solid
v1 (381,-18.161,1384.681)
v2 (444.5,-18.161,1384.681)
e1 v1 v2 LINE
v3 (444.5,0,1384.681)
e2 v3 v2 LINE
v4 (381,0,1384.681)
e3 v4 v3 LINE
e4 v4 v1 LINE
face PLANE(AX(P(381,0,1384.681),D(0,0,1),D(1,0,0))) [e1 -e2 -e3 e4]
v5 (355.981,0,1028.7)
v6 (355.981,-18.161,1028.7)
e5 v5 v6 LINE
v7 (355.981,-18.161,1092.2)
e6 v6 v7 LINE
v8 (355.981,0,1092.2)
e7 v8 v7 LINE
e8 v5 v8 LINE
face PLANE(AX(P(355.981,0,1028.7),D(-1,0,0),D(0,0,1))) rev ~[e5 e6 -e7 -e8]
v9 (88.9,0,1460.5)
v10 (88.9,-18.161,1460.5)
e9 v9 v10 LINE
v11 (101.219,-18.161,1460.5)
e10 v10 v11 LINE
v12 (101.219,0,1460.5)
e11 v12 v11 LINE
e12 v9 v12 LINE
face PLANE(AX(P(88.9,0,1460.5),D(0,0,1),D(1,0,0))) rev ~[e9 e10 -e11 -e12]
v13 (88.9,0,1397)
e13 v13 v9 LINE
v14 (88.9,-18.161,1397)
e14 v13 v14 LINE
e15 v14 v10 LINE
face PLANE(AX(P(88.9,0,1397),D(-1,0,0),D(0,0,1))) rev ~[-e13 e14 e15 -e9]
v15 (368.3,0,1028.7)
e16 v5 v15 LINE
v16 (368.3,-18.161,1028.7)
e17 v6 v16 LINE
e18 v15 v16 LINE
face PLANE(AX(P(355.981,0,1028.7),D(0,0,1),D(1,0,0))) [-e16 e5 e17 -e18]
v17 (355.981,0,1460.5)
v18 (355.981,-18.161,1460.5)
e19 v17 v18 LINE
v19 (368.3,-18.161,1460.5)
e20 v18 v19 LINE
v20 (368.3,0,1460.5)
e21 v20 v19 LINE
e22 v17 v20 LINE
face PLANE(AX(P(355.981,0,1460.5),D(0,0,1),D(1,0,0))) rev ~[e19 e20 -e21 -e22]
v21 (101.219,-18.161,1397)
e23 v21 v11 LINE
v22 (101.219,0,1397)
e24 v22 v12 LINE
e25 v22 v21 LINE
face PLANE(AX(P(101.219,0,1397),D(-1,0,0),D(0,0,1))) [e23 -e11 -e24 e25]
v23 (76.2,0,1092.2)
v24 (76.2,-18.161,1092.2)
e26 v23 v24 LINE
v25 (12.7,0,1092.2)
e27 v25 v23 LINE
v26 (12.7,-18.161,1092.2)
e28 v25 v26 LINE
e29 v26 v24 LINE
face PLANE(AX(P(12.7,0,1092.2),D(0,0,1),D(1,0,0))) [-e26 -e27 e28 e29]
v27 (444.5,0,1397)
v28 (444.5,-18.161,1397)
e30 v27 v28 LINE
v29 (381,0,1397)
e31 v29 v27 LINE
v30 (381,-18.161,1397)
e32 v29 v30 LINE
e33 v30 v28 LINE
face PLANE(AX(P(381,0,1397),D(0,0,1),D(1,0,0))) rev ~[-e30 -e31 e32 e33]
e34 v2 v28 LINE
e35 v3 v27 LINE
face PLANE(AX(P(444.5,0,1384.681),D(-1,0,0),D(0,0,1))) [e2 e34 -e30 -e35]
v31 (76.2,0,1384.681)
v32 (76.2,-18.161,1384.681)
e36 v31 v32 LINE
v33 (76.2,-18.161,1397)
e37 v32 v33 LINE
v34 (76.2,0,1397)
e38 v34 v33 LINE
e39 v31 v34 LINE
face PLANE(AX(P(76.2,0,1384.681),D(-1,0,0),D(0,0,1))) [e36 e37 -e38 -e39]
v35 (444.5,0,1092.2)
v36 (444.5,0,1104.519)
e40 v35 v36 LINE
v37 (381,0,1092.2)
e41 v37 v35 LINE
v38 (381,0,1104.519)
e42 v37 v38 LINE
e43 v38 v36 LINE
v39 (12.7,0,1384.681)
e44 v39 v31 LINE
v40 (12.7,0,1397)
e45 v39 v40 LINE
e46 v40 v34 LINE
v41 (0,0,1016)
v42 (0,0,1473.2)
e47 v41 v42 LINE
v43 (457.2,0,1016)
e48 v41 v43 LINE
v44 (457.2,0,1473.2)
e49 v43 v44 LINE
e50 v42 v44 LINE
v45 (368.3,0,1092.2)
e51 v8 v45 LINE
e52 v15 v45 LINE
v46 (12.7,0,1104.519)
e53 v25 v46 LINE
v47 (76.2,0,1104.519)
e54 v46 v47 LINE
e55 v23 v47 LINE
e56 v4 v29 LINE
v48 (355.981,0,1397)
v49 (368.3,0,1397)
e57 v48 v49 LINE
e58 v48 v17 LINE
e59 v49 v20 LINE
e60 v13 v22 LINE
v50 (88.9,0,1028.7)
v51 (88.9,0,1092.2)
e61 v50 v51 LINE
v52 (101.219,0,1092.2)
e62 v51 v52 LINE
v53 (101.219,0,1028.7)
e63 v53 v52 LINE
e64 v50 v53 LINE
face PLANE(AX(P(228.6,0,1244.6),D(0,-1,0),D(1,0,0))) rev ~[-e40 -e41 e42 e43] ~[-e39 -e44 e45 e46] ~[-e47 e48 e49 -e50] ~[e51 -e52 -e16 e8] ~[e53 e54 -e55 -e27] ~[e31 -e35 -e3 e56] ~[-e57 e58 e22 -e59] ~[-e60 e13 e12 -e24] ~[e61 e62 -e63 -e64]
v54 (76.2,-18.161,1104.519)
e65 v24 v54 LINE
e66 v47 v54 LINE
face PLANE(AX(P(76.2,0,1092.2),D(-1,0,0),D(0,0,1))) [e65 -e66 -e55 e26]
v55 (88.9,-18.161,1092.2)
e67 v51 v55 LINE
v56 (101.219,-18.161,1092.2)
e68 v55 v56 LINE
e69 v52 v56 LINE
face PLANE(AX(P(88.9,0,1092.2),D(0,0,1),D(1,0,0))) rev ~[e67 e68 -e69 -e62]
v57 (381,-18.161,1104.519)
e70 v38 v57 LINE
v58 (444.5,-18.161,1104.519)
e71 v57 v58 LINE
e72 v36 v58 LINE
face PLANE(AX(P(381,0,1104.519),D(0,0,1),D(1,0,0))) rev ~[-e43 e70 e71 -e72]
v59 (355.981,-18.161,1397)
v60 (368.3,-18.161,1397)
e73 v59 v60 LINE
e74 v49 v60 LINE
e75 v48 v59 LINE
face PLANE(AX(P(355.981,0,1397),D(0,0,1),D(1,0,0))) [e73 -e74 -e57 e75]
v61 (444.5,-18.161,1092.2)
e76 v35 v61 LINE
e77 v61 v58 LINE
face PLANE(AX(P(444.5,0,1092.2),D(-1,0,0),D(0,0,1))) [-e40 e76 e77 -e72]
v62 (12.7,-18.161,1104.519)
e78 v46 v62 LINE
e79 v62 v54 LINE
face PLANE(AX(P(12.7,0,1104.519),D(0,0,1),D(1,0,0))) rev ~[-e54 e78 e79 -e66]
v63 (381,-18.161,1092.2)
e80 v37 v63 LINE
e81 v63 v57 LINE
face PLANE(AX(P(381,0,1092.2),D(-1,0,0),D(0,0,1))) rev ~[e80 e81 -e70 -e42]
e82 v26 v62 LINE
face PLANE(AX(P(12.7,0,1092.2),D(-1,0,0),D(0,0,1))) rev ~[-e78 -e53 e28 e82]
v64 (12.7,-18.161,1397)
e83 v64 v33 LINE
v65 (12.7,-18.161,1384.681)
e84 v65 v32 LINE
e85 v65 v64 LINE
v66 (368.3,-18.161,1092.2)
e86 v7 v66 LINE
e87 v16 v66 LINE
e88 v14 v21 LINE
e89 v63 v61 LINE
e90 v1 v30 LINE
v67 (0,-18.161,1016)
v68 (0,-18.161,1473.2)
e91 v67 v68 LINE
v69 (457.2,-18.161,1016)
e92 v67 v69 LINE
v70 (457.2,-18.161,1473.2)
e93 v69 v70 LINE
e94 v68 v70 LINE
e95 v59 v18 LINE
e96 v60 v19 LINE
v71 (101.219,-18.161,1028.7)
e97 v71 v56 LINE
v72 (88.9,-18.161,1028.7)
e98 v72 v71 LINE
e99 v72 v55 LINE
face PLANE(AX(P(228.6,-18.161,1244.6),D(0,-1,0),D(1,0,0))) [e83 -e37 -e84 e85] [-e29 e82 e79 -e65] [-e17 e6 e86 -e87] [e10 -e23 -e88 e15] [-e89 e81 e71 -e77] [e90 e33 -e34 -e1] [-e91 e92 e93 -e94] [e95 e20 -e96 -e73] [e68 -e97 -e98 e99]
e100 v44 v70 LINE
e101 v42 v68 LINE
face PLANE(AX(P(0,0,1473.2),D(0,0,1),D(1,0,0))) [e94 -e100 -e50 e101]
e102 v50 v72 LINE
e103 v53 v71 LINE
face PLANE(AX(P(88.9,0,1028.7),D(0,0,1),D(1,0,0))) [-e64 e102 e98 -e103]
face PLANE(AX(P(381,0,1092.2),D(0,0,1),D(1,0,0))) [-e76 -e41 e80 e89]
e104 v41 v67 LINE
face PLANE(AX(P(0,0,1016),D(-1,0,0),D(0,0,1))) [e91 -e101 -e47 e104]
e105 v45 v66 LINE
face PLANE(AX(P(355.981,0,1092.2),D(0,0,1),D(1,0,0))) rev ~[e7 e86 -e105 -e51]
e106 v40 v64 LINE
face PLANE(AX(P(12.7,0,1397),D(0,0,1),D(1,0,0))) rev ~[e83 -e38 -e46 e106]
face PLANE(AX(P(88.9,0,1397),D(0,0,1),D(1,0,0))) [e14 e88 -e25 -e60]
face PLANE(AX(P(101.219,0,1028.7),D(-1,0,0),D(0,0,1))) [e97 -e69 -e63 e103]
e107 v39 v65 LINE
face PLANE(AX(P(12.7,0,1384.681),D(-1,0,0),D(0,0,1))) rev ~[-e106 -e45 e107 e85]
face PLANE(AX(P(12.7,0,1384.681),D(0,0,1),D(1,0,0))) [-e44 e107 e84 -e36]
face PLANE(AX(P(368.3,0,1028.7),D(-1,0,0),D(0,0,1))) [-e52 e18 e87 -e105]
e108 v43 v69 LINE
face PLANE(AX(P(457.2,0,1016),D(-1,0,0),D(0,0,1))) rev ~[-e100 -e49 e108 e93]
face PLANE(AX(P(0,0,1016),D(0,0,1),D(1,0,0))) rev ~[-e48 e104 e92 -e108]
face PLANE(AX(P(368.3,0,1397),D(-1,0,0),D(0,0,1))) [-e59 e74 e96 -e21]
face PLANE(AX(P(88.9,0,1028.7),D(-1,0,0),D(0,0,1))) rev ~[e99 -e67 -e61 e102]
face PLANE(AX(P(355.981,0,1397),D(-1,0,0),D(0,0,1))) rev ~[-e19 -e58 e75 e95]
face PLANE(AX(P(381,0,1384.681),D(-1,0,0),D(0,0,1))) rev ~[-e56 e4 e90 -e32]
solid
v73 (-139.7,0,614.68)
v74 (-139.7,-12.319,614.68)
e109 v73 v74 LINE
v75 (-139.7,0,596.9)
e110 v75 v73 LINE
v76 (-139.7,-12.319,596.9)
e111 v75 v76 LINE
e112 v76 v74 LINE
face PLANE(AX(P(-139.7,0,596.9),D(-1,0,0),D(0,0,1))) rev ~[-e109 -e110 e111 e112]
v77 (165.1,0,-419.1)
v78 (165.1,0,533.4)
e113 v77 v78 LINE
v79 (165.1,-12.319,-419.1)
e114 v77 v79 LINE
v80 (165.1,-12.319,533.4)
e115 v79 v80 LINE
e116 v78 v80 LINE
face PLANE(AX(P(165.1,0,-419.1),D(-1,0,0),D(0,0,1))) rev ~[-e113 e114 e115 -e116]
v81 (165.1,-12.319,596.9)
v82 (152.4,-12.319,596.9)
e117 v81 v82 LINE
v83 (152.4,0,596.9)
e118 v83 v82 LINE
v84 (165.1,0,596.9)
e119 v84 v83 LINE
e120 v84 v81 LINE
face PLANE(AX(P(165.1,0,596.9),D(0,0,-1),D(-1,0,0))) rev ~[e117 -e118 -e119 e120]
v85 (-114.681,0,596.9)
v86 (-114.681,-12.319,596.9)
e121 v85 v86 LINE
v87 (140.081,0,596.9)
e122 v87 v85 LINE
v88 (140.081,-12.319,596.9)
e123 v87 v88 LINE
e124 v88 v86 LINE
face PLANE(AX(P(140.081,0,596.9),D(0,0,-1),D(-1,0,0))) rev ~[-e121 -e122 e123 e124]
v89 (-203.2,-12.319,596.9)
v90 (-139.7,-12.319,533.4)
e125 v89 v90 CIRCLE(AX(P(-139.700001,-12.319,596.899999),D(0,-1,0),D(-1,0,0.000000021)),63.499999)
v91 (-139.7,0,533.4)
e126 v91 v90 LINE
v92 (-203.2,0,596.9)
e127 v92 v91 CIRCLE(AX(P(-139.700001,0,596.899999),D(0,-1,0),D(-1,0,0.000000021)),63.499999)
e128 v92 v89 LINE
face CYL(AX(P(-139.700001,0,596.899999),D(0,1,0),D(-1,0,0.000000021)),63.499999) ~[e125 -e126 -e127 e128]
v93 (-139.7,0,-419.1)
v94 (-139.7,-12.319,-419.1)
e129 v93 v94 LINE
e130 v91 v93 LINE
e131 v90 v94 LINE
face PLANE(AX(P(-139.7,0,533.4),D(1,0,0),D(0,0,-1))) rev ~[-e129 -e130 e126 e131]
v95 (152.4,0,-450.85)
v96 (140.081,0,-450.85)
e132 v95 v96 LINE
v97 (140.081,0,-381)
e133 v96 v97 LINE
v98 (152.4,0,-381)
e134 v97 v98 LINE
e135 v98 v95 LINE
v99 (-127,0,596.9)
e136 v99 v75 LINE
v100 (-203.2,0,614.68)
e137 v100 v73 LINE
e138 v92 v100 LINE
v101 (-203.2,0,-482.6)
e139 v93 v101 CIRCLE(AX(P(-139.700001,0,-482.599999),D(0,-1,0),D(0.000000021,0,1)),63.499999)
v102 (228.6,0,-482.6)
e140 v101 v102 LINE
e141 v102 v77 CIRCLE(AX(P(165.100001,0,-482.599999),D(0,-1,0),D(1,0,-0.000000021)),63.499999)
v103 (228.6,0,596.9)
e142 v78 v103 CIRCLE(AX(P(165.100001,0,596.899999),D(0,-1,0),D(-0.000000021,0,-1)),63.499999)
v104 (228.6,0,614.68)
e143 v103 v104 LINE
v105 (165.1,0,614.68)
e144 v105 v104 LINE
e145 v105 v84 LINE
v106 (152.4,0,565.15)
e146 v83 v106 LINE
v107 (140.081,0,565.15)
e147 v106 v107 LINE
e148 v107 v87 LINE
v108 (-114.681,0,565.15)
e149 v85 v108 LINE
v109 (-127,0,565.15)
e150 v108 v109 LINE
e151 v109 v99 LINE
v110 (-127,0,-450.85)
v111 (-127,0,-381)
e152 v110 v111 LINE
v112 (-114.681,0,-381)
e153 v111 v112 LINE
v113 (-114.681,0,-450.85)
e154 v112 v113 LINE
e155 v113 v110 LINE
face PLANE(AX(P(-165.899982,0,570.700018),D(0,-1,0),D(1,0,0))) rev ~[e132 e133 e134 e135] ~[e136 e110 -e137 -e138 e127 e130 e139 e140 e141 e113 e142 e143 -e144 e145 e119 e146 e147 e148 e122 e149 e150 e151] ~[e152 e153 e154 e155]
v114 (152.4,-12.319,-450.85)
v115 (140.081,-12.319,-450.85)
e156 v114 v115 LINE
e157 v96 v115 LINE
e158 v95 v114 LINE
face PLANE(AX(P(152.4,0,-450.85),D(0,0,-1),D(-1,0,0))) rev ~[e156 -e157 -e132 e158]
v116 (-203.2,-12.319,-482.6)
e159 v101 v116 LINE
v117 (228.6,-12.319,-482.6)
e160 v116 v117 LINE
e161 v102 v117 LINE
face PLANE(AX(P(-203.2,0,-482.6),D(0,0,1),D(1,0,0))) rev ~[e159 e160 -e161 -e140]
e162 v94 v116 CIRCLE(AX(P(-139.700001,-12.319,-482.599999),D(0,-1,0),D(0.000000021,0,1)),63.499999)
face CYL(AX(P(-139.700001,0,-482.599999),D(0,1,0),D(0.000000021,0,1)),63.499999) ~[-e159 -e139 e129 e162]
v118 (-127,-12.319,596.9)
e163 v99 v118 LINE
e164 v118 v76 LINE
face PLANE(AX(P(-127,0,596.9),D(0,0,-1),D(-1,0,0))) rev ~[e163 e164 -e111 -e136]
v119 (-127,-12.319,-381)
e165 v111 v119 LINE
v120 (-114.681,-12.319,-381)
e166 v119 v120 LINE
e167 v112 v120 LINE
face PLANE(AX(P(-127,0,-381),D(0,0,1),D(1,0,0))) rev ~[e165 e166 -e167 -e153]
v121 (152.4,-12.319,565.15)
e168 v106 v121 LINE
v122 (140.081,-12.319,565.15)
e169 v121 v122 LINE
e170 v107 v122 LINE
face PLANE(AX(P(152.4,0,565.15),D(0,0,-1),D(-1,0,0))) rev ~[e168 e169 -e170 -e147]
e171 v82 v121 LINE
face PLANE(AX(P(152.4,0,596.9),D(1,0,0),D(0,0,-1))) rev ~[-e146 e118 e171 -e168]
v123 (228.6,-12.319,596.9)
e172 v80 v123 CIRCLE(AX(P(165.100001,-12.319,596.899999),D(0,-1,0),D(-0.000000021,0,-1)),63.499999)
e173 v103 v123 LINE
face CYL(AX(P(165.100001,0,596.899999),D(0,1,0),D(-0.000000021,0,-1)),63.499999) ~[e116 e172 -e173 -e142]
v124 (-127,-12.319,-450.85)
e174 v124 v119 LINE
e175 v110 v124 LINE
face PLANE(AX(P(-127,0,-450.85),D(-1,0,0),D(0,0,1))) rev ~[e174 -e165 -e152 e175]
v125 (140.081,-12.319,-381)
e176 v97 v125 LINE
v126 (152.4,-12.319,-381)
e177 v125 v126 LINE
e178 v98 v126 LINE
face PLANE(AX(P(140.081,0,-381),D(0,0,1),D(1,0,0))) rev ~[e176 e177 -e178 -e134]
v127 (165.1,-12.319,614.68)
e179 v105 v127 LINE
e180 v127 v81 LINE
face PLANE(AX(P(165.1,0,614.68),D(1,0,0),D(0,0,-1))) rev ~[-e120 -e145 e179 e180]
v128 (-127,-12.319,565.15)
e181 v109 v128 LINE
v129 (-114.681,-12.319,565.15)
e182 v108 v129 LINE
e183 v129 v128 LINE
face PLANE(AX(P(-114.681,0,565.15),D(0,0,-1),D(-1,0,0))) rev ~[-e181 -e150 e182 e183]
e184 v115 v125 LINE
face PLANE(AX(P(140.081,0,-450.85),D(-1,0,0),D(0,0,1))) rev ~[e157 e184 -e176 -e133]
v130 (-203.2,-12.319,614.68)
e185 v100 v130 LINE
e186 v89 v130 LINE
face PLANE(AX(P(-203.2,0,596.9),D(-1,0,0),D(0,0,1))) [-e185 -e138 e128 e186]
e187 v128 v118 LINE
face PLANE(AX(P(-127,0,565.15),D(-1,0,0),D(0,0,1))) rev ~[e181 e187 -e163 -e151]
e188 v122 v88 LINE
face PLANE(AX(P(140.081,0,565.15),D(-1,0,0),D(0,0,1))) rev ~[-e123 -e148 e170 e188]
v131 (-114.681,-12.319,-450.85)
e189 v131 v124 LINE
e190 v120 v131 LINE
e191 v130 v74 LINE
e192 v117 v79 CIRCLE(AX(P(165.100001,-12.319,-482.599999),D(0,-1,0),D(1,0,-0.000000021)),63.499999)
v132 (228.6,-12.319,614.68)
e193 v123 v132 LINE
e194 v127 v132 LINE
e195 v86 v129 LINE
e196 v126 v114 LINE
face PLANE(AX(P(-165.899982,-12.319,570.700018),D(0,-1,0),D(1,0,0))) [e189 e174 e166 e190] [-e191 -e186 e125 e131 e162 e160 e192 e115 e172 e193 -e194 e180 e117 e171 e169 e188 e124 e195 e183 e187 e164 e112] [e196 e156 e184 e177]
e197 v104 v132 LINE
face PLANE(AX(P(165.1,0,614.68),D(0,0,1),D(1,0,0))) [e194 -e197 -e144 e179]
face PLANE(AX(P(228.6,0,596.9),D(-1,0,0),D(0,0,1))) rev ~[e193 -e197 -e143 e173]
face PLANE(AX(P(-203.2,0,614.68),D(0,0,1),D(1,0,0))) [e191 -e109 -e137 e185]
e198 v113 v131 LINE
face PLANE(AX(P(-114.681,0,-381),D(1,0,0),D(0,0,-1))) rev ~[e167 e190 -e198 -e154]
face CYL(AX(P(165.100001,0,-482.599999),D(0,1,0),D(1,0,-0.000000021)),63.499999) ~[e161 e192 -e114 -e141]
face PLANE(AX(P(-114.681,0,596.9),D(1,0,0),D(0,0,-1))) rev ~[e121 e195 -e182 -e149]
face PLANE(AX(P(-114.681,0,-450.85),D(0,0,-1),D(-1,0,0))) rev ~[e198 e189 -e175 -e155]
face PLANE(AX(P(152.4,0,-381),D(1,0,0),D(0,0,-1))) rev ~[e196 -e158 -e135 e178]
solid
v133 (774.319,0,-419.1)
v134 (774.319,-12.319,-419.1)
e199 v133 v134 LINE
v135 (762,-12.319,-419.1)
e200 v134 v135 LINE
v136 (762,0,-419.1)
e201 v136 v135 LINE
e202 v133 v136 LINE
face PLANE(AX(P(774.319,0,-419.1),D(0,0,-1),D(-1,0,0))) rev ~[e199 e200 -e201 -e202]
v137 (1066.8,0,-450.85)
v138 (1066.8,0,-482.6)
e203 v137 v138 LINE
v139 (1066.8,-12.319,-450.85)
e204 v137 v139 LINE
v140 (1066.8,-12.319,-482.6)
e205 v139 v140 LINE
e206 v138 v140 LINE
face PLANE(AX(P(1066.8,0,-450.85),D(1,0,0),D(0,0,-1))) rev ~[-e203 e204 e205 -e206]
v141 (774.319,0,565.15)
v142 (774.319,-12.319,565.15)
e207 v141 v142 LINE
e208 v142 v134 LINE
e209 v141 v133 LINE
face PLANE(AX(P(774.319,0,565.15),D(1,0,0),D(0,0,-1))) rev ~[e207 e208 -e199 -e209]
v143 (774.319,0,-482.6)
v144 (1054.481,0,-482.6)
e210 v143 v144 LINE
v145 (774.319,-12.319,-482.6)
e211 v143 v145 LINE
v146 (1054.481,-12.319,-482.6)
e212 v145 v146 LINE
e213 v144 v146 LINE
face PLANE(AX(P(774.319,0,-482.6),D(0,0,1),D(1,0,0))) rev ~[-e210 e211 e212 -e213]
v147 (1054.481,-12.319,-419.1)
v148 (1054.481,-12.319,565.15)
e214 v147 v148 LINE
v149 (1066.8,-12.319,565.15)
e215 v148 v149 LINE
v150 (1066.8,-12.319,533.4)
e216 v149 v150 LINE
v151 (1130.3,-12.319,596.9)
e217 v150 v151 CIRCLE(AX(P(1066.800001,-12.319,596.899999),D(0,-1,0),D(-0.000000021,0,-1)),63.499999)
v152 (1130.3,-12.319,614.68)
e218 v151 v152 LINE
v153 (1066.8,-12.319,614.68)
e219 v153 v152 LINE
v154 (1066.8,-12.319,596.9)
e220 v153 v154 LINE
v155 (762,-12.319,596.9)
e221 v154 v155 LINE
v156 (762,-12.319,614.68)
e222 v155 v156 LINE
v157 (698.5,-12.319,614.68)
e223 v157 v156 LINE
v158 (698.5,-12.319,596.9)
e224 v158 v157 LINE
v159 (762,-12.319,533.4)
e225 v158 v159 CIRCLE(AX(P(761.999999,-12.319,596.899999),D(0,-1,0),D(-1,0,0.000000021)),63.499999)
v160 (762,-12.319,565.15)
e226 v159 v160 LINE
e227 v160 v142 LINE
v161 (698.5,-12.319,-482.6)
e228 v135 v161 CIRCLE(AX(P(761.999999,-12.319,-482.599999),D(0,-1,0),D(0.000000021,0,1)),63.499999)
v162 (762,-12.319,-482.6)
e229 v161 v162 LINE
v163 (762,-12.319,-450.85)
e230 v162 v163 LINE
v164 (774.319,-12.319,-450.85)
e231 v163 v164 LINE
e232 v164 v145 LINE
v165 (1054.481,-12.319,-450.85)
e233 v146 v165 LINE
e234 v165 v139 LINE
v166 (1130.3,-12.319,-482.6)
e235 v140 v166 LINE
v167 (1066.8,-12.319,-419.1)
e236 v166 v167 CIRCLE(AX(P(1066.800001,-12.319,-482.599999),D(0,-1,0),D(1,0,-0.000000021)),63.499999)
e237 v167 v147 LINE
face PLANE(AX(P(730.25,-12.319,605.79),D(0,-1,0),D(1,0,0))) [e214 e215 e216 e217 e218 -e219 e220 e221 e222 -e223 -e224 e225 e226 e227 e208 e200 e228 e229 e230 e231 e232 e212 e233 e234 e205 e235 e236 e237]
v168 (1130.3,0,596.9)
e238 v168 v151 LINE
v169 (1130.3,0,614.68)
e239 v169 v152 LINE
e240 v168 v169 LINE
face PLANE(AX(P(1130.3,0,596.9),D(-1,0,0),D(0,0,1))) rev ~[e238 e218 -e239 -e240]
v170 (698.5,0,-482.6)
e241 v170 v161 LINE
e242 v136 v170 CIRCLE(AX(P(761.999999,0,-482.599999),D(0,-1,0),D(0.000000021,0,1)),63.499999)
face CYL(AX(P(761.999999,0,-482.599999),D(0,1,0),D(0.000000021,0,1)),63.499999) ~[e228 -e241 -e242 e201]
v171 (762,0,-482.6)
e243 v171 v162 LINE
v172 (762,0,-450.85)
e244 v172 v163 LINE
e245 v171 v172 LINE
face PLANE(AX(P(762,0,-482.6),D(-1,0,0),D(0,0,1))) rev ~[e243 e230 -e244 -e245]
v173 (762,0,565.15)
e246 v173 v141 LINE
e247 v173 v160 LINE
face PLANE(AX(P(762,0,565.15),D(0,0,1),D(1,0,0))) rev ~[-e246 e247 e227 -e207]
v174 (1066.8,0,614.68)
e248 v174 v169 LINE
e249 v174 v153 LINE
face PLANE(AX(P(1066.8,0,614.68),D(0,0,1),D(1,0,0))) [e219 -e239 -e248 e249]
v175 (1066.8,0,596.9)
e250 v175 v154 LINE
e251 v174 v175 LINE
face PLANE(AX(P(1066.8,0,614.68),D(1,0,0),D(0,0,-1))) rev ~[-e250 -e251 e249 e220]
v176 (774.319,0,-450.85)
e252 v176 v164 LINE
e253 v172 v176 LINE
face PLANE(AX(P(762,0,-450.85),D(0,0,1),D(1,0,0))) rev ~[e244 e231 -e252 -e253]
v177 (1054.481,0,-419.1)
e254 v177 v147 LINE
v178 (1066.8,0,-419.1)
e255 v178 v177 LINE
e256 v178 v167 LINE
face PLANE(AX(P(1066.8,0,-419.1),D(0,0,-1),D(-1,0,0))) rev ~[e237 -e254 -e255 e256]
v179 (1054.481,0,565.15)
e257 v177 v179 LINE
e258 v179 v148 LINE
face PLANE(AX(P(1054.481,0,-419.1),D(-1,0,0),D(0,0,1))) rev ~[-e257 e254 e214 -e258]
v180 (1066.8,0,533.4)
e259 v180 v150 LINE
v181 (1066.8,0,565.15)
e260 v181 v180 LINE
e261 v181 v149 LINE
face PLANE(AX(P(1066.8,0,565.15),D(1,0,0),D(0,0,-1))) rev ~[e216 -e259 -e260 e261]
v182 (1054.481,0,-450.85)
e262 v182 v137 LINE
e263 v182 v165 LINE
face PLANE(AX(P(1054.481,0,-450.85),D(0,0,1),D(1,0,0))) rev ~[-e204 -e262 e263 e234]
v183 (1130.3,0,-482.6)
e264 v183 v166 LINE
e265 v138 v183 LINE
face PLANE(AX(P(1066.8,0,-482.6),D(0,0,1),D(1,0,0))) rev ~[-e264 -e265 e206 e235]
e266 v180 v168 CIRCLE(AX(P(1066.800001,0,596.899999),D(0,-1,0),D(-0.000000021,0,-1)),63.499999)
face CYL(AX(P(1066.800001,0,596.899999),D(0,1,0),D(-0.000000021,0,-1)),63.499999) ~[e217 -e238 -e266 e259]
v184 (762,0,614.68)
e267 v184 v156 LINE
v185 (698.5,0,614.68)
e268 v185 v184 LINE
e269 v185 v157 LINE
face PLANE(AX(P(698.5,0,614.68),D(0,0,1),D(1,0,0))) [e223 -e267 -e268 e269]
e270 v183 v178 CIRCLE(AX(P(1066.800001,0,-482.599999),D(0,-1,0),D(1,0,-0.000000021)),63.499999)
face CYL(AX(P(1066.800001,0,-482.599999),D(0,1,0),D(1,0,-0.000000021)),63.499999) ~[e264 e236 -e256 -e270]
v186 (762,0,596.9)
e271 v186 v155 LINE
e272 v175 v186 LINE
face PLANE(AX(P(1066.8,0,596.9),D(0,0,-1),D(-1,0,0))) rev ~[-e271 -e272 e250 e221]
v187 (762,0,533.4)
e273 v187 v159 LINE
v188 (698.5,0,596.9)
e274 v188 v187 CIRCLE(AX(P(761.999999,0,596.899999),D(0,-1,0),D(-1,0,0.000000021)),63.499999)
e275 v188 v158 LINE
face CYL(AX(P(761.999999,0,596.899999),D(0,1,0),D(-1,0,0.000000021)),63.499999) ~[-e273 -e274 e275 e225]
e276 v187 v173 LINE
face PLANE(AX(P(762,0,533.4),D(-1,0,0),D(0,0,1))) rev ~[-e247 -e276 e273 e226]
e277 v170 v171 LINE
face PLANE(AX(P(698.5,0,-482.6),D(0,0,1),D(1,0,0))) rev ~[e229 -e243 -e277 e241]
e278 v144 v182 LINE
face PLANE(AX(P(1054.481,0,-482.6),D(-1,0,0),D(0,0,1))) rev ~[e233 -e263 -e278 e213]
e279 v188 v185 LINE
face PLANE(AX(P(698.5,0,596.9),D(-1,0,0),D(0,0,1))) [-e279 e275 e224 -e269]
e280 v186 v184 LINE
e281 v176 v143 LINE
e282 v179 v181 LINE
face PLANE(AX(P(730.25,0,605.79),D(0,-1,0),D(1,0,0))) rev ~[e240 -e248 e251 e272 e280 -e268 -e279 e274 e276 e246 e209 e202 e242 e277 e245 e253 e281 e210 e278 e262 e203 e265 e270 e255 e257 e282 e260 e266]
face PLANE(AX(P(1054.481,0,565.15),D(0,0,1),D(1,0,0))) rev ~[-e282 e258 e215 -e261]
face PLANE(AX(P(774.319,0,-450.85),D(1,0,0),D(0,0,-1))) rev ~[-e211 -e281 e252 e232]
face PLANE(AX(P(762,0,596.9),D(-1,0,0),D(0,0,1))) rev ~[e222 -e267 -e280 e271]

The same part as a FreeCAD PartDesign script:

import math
import FreeCAD as App
import Part
import Sketcher

V = App.Vector
Q = App.Units.Quantity

doc = App.newDocument("Part")
params = doc.addObject("Spreadsheet::Sheet", "Params")
for row, (alias, value) in enumerate([
    ("sketch1_radius", "2.4999999 in"),
    ("sketch1_width", "17 in"),
    ("sketch1_width2", "12 in"),
    ("sketch1_width3", "0.5 in"),
    ("sketch1_height", "37.5 in"),
    ("pad1_length", "0.485 in"),
    ("sketch2_width", "18 in"),
    ("sketch2_width2", "2.5 in"),
    ("sketch2_width3", "0.485 in"),
    ("pad2_length", "0.715 in"),
], start=1):
    params.set(f"A{row}", alias)
    params.set(f"B{row}", "=" + value)
    params.setAlias(f"B{row}", alias)

body = doc.addObject("PartDesign::Body", "Body")
body.AllowCompound = True

# Sketch on XZ plane
sketch1 = body.newObject("Sketcher::SketchObject", "Sketch")
sketch1.AttachmentSupport = (doc.getObject("XZ_Plane"), [""])
sketch1.MapMode = "FlatFace"
sketch1.addGeometry(Part.ArcOfCircle(Part.Circle(V(-139.700001, 596.899999, 0), V(0, 0, 1), 63.499999), math.radians(179.999999), math.radians(270.000001)), False)
sketch1.addGeometry(Part.LineSegment(V(-139.7, 533.4, 0), V(-139.7, -419.1, 0)), False)
sketch1.addGeometry(Part.ArcOfCircle(Part.Circle(V(-139.700001, -482.599999, 0), V(0, 0, 1), 63.499999), math.radians(89.999999), math.radians(180.000001)), False)
sketch1.addGeometry(Part.LineSegment(V(-203.2, -482.6, 0), V(228.6, -482.6, 0)), False)
sketch1.addGeometry(Part.ArcOfCircle(Part.Circle(V(165.100001, -482.599999, 0), V(0, 0, 1), 63.499999), math.radians(-0.000001), math.radians(90.000001)), False)
sketch1.addGeometry(Part.LineSegment(V(165.1, -419.1, 0), V(165.1, 533.4, 0)), False)
sketch1.addGeometry(Part.ArcOfCircle(Part.Circle(V(165.100001, 596.899999, 0), V(0, 0, 1), 63.499999), math.radians(-90.000001), math.radians(0.000001)), False)
sketch1.addGeometry(Part.LineSegment(V(228.6, 596.9, 0), V(228.6, 614.68, 0)), False)
sketch1.addGeometry(Part.LineSegment(V(228.6, 614.68, 0), V(165.1, 614.68, 0)), False)
sketch1.addGeometry(Part.LineSegment(V(165.1, 614.68, 0), V(165.1, 596.9, 0)), False)
sketch1.addGeometry(Part.LineSegment(V(165.1, 596.9, 0), V(152.4, 596.9, 0)), False)
sketch1.addGeometry(Part.LineSegment(V(152.4, 596.9, 0), V(152.4, 565.15, 0)), False)
sketch1.addGeometry(Part.LineSegment(V(152.4, 565.15, 0), V(140.081, 565.15, 0)), False)
sketch1.addGeometry(Part.LineSegment(V(140.081, 565.15, 0), V(140.081, 596.9, 0)), False)
sketch1.addGeometry(Part.LineSegment(V(140.081, 596.9, 0), V(-114.681, 596.9, 0)), False)
sketch1.addGeometry(Part.LineSegment(V(-114.681, 596.9, 0), V(-114.681, 565.15, 0)), False)
sketch1.addGeometry(Part.LineSegment(V(-114.681, 565.15, 0), V(-127, 565.15, 0)), False)
sketch1.addGeometry(Part.LineSegment(V(-127, 565.15, 0), V(-127, 596.9, 0)), False)
sketch1.addGeometry(Part.LineSegment(V(-127, 596.9, 0), V(-139.7, 596.9, 0)), False)
sketch1.addGeometry(Part.LineSegment(V(-139.7, 596.9, 0), V(-139.7, 614.68, 0)), False)
sketch1.addGeometry(Part.LineSegment(V(-139.7, 614.68, 0), V(-203.2, 614.68, 0)), False)
sketch1.addGeometry(Part.LineSegment(V(-203.2, 614.68, 0), V(-203.2, 596.9, 0)), False)
sketch1.addGeometry(Part.LineSegment(V(152.4, -450.85, 0), V(140.081, -450.85, 0)), False)
sketch1.addGeometry(Part.LineSegment(V(140.081, -450.85, 0), V(140.081, -381, 0)), False)
sketch1.addGeometry(Part.LineSegment(V(140.081, -381, 0), V(152.4, -381, 0)), False)
sketch1.addGeometry(Part.LineSegment(V(152.4, -381, 0), V(152.4, -450.85, 0)), False)
sketch1.addGeometry(Part.LineSegment(V(-127, -381, 0), V(-114.681, -381, 0)), False)
sketch1.addGeometry(Part.LineSegment(V(-114.681, -381, 0), V(-114.681, -450.85, 0)), False)
sketch1.addGeometry(Part.LineSegment(V(-114.681, -450.85, 0), V(-127, -450.85, 0)), False)
sketch1.addGeometry(Part.LineSegment(V(-127, -450.85, 0), V(-127, -381, 0)), False)
sketch1.addGeometry(Part.LineSegment(V(698.5, 614.68, 0), V(698.5, 596.9, 0)), False)
sketch1.addGeometry(Part.ArcOfCircle(Part.Circle(V(761.999999, 596.899999, 0), V(0, 0, 1), 63.499999), math.radians(179.999999), math.radians(270.000001)), False)
sketch1.addGeometry(Part.LineSegment(V(762, 533.4, 0), V(762, 565.15, 0)), False)
sketch1.addGeometry(Part.LineSegment(V(762, 565.15, 0), V(774.319, 565.15, 0)), False)
sketch1.addGeometry(Part.LineSegment(V(774.319, 565.15, 0), V(774.319, -419.1, 0)), False)
sketch1.addGeometry(Part.LineSegment(V(774.319, -419.1, 0), V(762, -419.1, 0)), False)
sketch1.addGeometry(Part.ArcOfCircle(Part.Circle(V(761.999999, -482.599999, 0), V(0, 0, 1), 63.499999), math.radians(89.999999), math.radians(180.000001)), False)
sketch1.addGeometry(Part.LineSegment(V(698.5, -482.6, 0), V(762, -482.6, 0)), False)
sketch1.addGeometry(Part.LineSegment(V(762, -482.6, 0), V(762, -450.85, 0)), False)
sketch1.addGeometry(Part.LineSegment(V(762, -450.85, 0), V(774.319, -450.85, 0)), False)
sketch1.addGeometry(Part.LineSegment(V(774.319, -450.85, 0), V(774.319, -482.6, 0)), False)
sketch1.addGeometry(Part.LineSegment(V(774.319, -482.6, 0), V(1054.481, -482.6, 0)), False)
sketch1.addGeometry(Part.LineSegment(V(1054.481, -482.6, 0), V(1054.481, -450.85, 0)), False)
sketch1.addGeometry(Part.LineSegment(V(1054.481, -450.85, 0), V(1066.8, -450.85, 0)), False)
sketch1.addGeometry(Part.LineSegment(V(1066.8, -450.85, 0), V(1066.8, -482.6, 0)), False)
sketch1.addGeometry(Part.LineSegment(V(1066.8, -482.6, 0), V(1130.3, -482.6, 0)), False)
sketch1.addGeometry(Part.ArcOfCircle(Part.Circle(V(1066.800001, -482.599999, 0), V(0, 0, 1), 63.499999), math.radians(-0.000001), math.radians(90.000001)), False)
sketch1.addGeometry(Part.LineSegment(V(1066.8, -419.1, 0), V(1054.481, -419.1, 0)), False)
sketch1.addGeometry(Part.LineSegment(V(1054.481, -419.1, 0), V(1054.481, 565.15, 0)), False)
sketch1.addGeometry(Part.LineSegment(V(1054.481, 565.15, 0), V(1066.8, 565.15, 0)), False)
sketch1.addGeometry(Part.LineSegment(V(1066.8, 565.15, 0), V(1066.8, 533.4, 0)), False)
sketch1.addGeometry(Part.ArcOfCircle(Part.Circle(V(1066.800001, 596.899999, 0), V(0, 0, 1), 63.499999), math.radians(-90.000001), math.radians(0.000001)), False)
sketch1.addGeometry(Part.LineSegment(V(1130.3, 596.9, 0), V(1130.3, 614.68, 0)), False)
sketch1.addGeometry(Part.LineSegment(V(1130.3, 614.68, 0), V(1066.8, 614.68, 0)), False)
sketch1.addGeometry(Part.LineSegment(V(1066.8, 614.68, 0), V(1066.8, 596.9, 0)), False)
sketch1.addGeometry(Part.LineSegment(V(1066.8, 596.9, 0), V(762, 596.9, 0)), False)
sketch1.addGeometry(Part.LineSegment(V(762, 596.9, 0), V(762, 614.68, 0)), False)
sketch1.addGeometry(Part.LineSegment(V(762, 614.68, 0), V(698.5, 614.68, 0)), False)
sketch1.addConstraint(Sketcher.Constraint("Coincident", 0, 2, 1, 1))
sketch1.addConstraint(Sketcher.Constraint("Coincident", 1, 2, 2, 1))
sketch1.addConstraint(Sketcher.Constraint("Coincident", 2, 2, 3, 1))
sketch1.addConstraint(Sketcher.Constraint("Coincident", 3, 2, 4, 1))
sketch1.addConstraint(Sketcher.Constraint("Coincident", 4, 2, 5, 1))
sketch1.addConstraint(Sketcher.Constraint("Coincident", 5, 2, 6, 1))
sketch1.addConstraint(Sketcher.Constraint("Tangent", 6, 2, 7, 1))
sketch1.addConstraint(Sketcher.Constraint("Coincident", 7, 2, 8, 1))
sketch1.addConstraint(Sketcher.Constraint("Coincident", 8, 2, 9, 1))
sketch1.addConstraint(Sketcher.Constraint("Coincident", 9, 2, 10, 1))
sketch1.addConstraint(Sketcher.Constraint("Coincident", 10, 2, 11, 1))
sketch1.addConstraint(Sketcher.Constraint("Coincident", 11, 2, 12, 1))
sketch1.addConstraint(Sketcher.Constraint("Coincident", 12, 2, 13, 1))
sketch1.addConstraint(Sketcher.Constraint("Coincident", 13, 2, 14, 1))
sketch1.addConstraint(Sketcher.Constraint("Coincident", 14, 2, 15, 1))
sketch1.addConstraint(Sketcher.Constraint("Coincident", 15, 2, 16, 1))
sketch1.addConstraint(Sketcher.Constraint("Coincident", 16, 2, 17, 1))
sketch1.addConstraint(Sketcher.Constraint("Coincident", 17, 2, 18, 1))
sketch1.addConstraint(Sketcher.Constraint("Coincident", 18, 2, 19, 1))
sketch1.addConstraint(Sketcher.Constraint("Coincident", 19, 2, 20, 1))
sketch1.addConstraint(Sketcher.Constraint("Coincident", 20, 2, 21, 1))
sketch1.addConstraint(Sketcher.Constraint("Tangent", 21, 2, 0, 1))
sketch1.addConstraint(Sketcher.Constraint("Coincident", 22, 2, 23, 1))
sketch1.addConstraint(Sketcher.Constraint("Coincident", 23, 2, 24, 1))
sketch1.addConstraint(Sketcher.Constraint("Coincident", 24, 2, 25, 1))
sketch1.addConstraint(Sketcher.Constraint("Coincident", 25, 2, 22, 1))
sketch1.addConstraint(Sketcher.Constraint("Coincident", 26, 2, 27, 1))
sketch1.addConstraint(Sketcher.Constraint("Coincident", 27, 2, 28, 1))
sketch1.addConstraint(Sketcher.Constraint("Coincident", 28, 2, 29, 1))
sketch1.addConstraint(Sketcher.Constraint("Coincident", 29, 2, 26, 1))
sketch1.addConstraint(Sketcher.Constraint("Tangent", 30, 2, 31, 1))
sketch1.addConstraint(Sketcher.Constraint("Coincident", 31, 2, 32, 1))
sketch1.addConstraint(Sketcher.Constraint("Coincident", 32, 2, 33, 1))
sketch1.addConstraint(Sketcher.Constraint("Coincident", 33, 2, 34, 1))
sketch1.addConstraint(Sketcher.Constraint("Coincident", 34, 2, 35, 1))
sketch1.addConstraint(Sketcher.Constraint("Tangent", 35, 2, 36, 1))
sketch1.addConstraint(Sketcher.Constraint("Coincident", 36, 2, 37, 1))
sketch1.addConstraint(Sketcher.Constraint("Coincident", 37, 2, 38, 1))
sketch1.addConstraint(Sketcher.Constraint("Coincident", 38, 2, 39, 1))
sketch1.addConstraint(Sketcher.Constraint("Coincident", 39, 2, 40, 1))
sketch1.addConstraint(Sketcher.Constraint("Coincident", 40, 2, 41, 1))
sketch1.addConstraint(Sketcher.Constraint("Coincident", 41, 2, 42, 1))
sketch1.addConstraint(Sketcher.Constraint("Coincident", 42, 2, 43, 1))
sketch1.addConstraint(Sketcher.Constraint("Coincident", 43, 2, 44, 1))
sketch1.addConstraint(Sketcher.Constraint("Coincident", 44, 2, 45, 1))
sketch1.addConstraint(Sketcher.Constraint("Coincident", 45, 2, 46, 1))
sketch1.addConstraint(Sketcher.Constraint("Tangent", 46, 2, 47, 1))
sketch1.addConstraint(Sketcher.Constraint("Coincident", 47, 2, 48, 1))
sketch1.addConstraint(Sketcher.Constraint("Coincident", 48, 2, 49, 1))
sketch1.addConstraint(Sketcher.Constraint("Coincident", 49, 2, 50, 1))
sketch1.addConstraint(Sketcher.Constraint("Coincident", 50, 2, 51, 1))
sketch1.addConstraint(Sketcher.Constraint("Tangent", 51, 2, 52, 1))
sketch1.addConstraint(Sketcher.Constraint("Coincident", 52, 2, 53, 1))
sketch1.addConstraint(Sketcher.Constraint("Coincident", 53, 2, 54, 1))
sketch1.addConstraint(Sketcher.Constraint("Coincident", 54, 2, 55, 1))
sketch1.addConstraint(Sketcher.Constraint("Coincident", 55, 2, 56, 1))
sketch1.addConstraint(Sketcher.Constraint("Coincident", 56, 2, 57, 1))
sketch1.addConstraint(Sketcher.Constraint("Coincident", 57, 2, 30, 1))
sketch1.addConstraint(Sketcher.Constraint("Vertical", 1))
sketch1.addConstraint(Sketcher.Constraint("Horizontal", 3))
sketch1.addConstraint(Sketcher.Constraint("Vertical", 5))
sketch1.addConstraint(Sketcher.Constraint("Vertical", 7))
sketch1.addConstraint(Sketcher.Constraint("Horizontal", 8))
sketch1.addConstraint(Sketcher.Constraint("Vertical", 9))
sketch1.addConstraint(Sketcher.Constraint("Horizontal", 10))
sketch1.addConstraint(Sketcher.Constraint("Vertical", 11))
sketch1.addConstraint(Sketcher.Constraint("Horizontal", 12))
sketch1.addConstraint(Sketcher.Constraint("Vertical", 13))
sketch1.addConstraint(Sketcher.Constraint("Horizontal", 14))
sketch1.addConstraint(Sketcher.Constraint("Vertical", 15))
sketch1.addConstraint(Sketcher.Constraint("Horizontal", 16))
sketch1.addConstraint(Sketcher.Constraint("Vertical", 17))
sketch1.addConstraint(Sketcher.Constraint("Horizontal", 18))
sketch1.addConstraint(Sketcher.Constraint("Vertical", 19))
sketch1.addConstraint(Sketcher.Constraint("Horizontal", 20))
sketch1.addConstraint(Sketcher.Constraint("Vertical", 21))
sketch1.addConstraint(Sketcher.Constraint("Horizontal", 22))
sketch1.addConstraint(Sketcher.Constraint("Vertical", 23))
sketch1.addConstraint(Sketcher.Constraint("Horizontal", 24))
sketch1.addConstraint(Sketcher.Constraint("Vertical", 25))
sketch1.addConstraint(Sketcher.Constraint("Horizontal", 26))
sketch1.addConstraint(Sketcher.Constraint("Vertical", 27))
sketch1.addConstraint(Sketcher.Constraint("Horizontal", 28))
sketch1.addConstraint(Sketcher.Constraint("Vertical", 29))
sketch1.addConstraint(Sketcher.Constraint("Vertical", 30))
sketch1.addConstraint(Sketcher.Constraint("Vertical", 32))
sketch1.addConstraint(Sketcher.Constraint("Horizontal", 33))
sketch1.addConstraint(Sketcher.Constraint("Vertical", 34))
sketch1.addConstraint(Sketcher.Constraint("Horizontal", 35))
sketch1.addConstraint(Sketcher.Constraint("Horizontal", 37))
sketch1.addConstraint(Sketcher.Constraint("Vertical", 38))
sketch1.addConstraint(Sketcher.Constraint("Horizontal", 39))
sketch1.addConstraint(Sketcher.Constraint("Vertical", 40))
sketch1.addConstraint(Sketcher.Constraint("Horizontal", 41))
sketch1.addConstraint(Sketcher.Constraint("Vertical", 42))
sketch1.addConstraint(Sketcher.Constraint("Horizontal", 43))
sketch1.addConstraint(Sketcher.Constraint("Vertical", 44))
sketch1.addConstraint(Sketcher.Constraint("Horizontal", 45))
sketch1.addConstraint(Sketcher.Constraint("Horizontal", 47))
sketch1.addConstraint(Sketcher.Constraint("Vertical", 48))
sketch1.addConstraint(Sketcher.Constraint("Horizontal", 49))
sketch1.addConstraint(Sketcher.Constraint("Vertical", 50))
sketch1.addConstraint(Sketcher.Constraint("Vertical", 52))
sketch1.addConstraint(Sketcher.Constraint("Horizontal", 53))
sketch1.addConstraint(Sketcher.Constraint("Vertical", 54))
sketch1.addConstraint(Sketcher.Constraint("Horizontal", 55))
sketch1.addConstraint(Sketcher.Constraint("Vertical", 56))
sketch1.addConstraint(Sketcher.Constraint("Horizontal", 57))
sketch1.addConstraint(Sketcher.Constraint("Coincident", 9, 2, 6, 3))
sketch1.addConstraint(Sketcher.Constraint("Coincident", 18, 2, 0, 3))
sketch1.addConstraint(Sketcher.Constraint("Coincident", 37, 2, 36, 3))
sketch1.addConstraint(Sketcher.Constraint("Coincident", 44, 2, 46, 3))
sketch1.addConstraint(Sketcher.Constraint("Coincident", 54, 2, 51, 3))
sketch1.addConstraint(Sketcher.Constraint("Coincident", 55, 2, 31, 3))
sketch1.addConstraint(Sketcher.Constraint("Equal", 0, 2))
sketch1.addConstraint(Sketcher.Constraint("Equal", 2, 4))
sketch1.addConstraint(Sketcher.Constraint("Equal", 4, 6))
sketch1.addConstraint(Sketcher.Constraint("Equal", 6, 31))
sketch1.addConstraint(Sketcher.Constraint("Equal", 31, 36))
sketch1.addConstraint(Sketcher.Constraint("Equal", 36, 46))
sketch1.addConstraint(Sketcher.Constraint("Equal", 46, 51))
sketch1.addConstraint(Sketcher.Constraint("Horizontal", 2, 3, 4, 3))
sketch1.addConstraint(Sketcher.Constraint("Horizontal", 0, 3, 6, 3))
sketch1.addConstraint(Sketcher.Constraint("Horizontal", 6, 3, 31, 3))
sketch1.addConstraint(Sketcher.Constraint("Horizontal", 4, 3, 36, 3))
sketch1.addConstraint(Sketcher.Constraint("Horizontal", 36, 3, 46, 3))
sketch1.addConstraint(Sketcher.Constraint("Horizontal", 46, 3, 2, 2))
sketch1.addConstraint(Sketcher.Constraint("Horizontal", 10, 2, 13, 2))
sketch1.addConstraint(Sketcher.Constraint("Horizontal", 12, 2, 15, 2))
sketch1.addConstraint(Sketcher.Constraint("Horizontal", 8, 2, 19, 2))
sketch1.addConstraint(Sketcher.Constraint("Horizontal", 24, 2, 26, 2))
sketch1.addConstraint(Sketcher.Constraint("Horizontal", 25, 2, 27, 2))
sketch1.addConstraint(Sketcher.Constraint("Horizontal", 16, 2, 32, 2))
sketch1.addConstraint(Sketcher.Constraint("Horizontal", 28, 2, 38, 2))
sketch1.addConstraint(Sketcher.Constraint("Horizontal", 37, 2, 40, 2))
sketch1.addConstraint(Sketcher.Constraint("Horizontal", 39, 2, 42, 2))
sketch1.addConstraint(Sketcher.Constraint("Horizontal", 33, 2, 48, 2))
sketch1.addConstraint(Sketcher.Constraint("Horizontal", 20, 2, 52, 2))
sketch1.addConstraint(Sketcher.Constraint("Horizontal", 53, 2, 56, 2))
sketch1.addConstraint(Sketcher.Constraint("Vertical", 0, 3, 2, 3))
sketch1.addConstraint(Sketcher.Constraint("Vertical", 4, 3, 6, 3))
sketch1.addConstraint(Sketcher.Constraint("Vertical", 31, 3, 36, 3))
sketch1.addConstraint(Sketcher.Constraint("Vertical", 46, 3, 51, 3))
sketch1.addConstraint(Sketcher.Constraint("Vertical", 2, 3, 0, 2))
sketch1.addConstraint(Sketcher.Constraint("Vertical", 6, 3, 4, 2))
sketch1.addConstraint(Sketcher.Constraint("Vertical", 13, 2, 22, 2))
sketch1.addConstraint(Sketcher.Constraint("Vertical", 11, 2, 24, 2))
sketch1.addConstraint(Sketcher.Constraint("Vertical", 15, 2, 26, 2))
sketch1.addConstraint(Sketcher.Constraint("Vertical", 17, 2, 28, 2))
sketch1.addConstraint(Sketcher.Constraint("Vertical", 36, 3, 31, 2))
sketch1.addConstraint(Sketcher.Constraint("Vertical", 34, 2, 39, 2))
sketch1.addConstraint(Sketcher.Constraint("Vertical", 42, 2, 47, 2))
sketch1.addConstraint(Sketcher.Constraint("Vertical", 46, 2, 49, 2))
sketch1.addConstraint(Sketcher.Constraint("Equal", 12, 16))
sketch1.addConstraint(Sketcher.Constraint("Equal", 10, 18))
sketch1.addConstraint(Sketcher.Constraint("Equal", 28, 33))
sketch1.addConstraint(Sketcher.Constraint("Equal", 39, 43))
sketch1.addConstraint(Sketcher.Constraint("Equal", 17, 32))
sketch1.addConstraint(Sketcher.Constraint("Equal", 32, 38))
sketch1.addConstraint(Sketcher.Constraint("Radius", 0, Q("2.4999999 in")))
sketch1.addConstraint(Sketcher.Constraint("DistanceX", 3, 1, 3, 2, Q("17 in")))
sketch1.addConstraint(Sketcher.Constraint("DistanceX", 55, 2, 55, 1, Q("12 in")))
sketch1.addConstraint(Sketcher.Constraint("DistanceX", 10, 2, 10, 1, Q("0.5 in")))
sketch1.addConstraint(Sketcher.Constraint("DistanceY", 1, 2, 1, 1, Q("37.5 in")))
sketch1.addConstraint(Sketcher.Constraint("DistanceY", 7, 1, 7, 2, Q("0.7 in")))
sketch1.addConstraint(Sketcher.Constraint("DistanceY", 2, 3, -1, 1, Q("18.9999999 in")))
sketch1.addConstraint(Sketcher.Constraint("DistanceX", -1, 1, 31, 3, Q("29.9999999 in")))
sketch1.addConstraint(Sketcher.Constraint("DistanceX", 2, 2, -1, 1, Q("8 in")))
sketch1.addConstraint(Sketcher.Constraint("DistanceY", 23, 2, -1, 1, Q("15 in")))
sketch1.addConstraint(Sketcher.Constraint("DistanceX", 14, 2, 14, 1, Q("10.03 in")))
sketch1.setExpression("Constraints[159]", "Params.sketch1_radius")
sketch1.setExpression("Constraints[160]", "Params.sketch1_width")
sketch1.setExpression("Constraints[161]", "Params.sketch1_width2")
sketch1.setExpression("Constraints[162]", "Params.sketch1_width3")
sketch1.setExpression("Constraints[163]", "Params.sketch1_height")
pad1 = body.newObject("PartDesign::Pad", "Pad")
pad1.Profile = sketch1
pad1.setExpression("Length", "Params.pad1_length")
body2 = doc.addObject("PartDesign::Body", "Body001")

# Sketch on XZ plane
sketch2 = body2.newObject("Sketcher::SketchObject", "Sketch001")
sketch2.AttachmentSupport = (doc.getObject("XZ_Plane001"), [""])
sketch2.MapMode = "FlatFace"
sketch2.addGeometry(Part.LineSegment(V(0, 1473.2, 0), V(0, 1016, 0)), False)
sketch2.addGeometry(Part.LineSegment(V(0, 1016, 0), V(457.2, 1016, 0)), False)
sketch2.addGeometry(Part.LineSegment(V(457.2, 1016, 0), V(457.2, 1473.2, 0)), False)
sketch2.addGeometry(Part.LineSegment(V(457.2, 1473.2, 0), V(0, 1473.2, 0)), False)
sketch2.addGeometry(Part.LineSegment(V(101.219, 1028.7, 0), V(88.9, 1028.7, 0)), False)
sketch2.addGeometry(Part.LineSegment(V(88.9, 1028.7, 0), V(88.9, 1092.2, 0)), False)
sketch2.addGeometry(Part.LineSegment(V(88.9, 1092.2, 0), V(101.219, 1092.2, 0)), False)
sketch2.addGeometry(Part.LineSegment(V(101.219, 1092.2, 0), V(101.219, 1028.7, 0)), False)
sketch2.addGeometry(Part.LineSegment(V(76.2, 1092.2, 0), V(12.7, 1092.2, 0)), False)
sketch2.addGeometry(Part.LineSegment(V(12.7, 1092.2, 0), V(12.7, 1104.519, 0)), False)
sketch2.addGeometry(Part.LineSegment(V(12.7, 1104.519, 0), V(76.2, 1104.519, 0)), False)
sketch2.addGeometry(Part.LineSegment(V(76.2, 1104.519, 0), V(76.2, 1092.2, 0)), False)
sketch2.addGeometry(Part.LineSegment(V(368.3, 1028.7, 0), V(355.981, 1028.7, 0)), False)
sketch2.addGeometry(Part.LineSegment(V(355.981, 1028.7, 0), V(355.981, 1092.2, 0)), False)
sketch2.addGeometry(Part.LineSegment(V(355.981, 1092.2, 0), V(368.3, 1092.2, 0)), False)
sketch2.addGeometry(Part.LineSegment(V(368.3, 1092.2, 0), V(368.3, 1028.7, 0)), False)
sketch2.addGeometry(Part.LineSegment(V(444.5, 1092.2, 0), V(381, 1092.2, 0)), False)
sketch2.addGeometry(Part.LineSegment(V(381, 1092.2, 0), V(381, 1104.519, 0)), False)
sketch2.addGeometry(Part.LineSegment(V(381, 1104.519, 0), V(444.5, 1104.519, 0)), False)
sketch2.addGeometry(Part.LineSegment(V(444.5, 1104.519, 0), V(444.5, 1092.2, 0)), False)
sketch2.addGeometry(Part.LineSegment(V(76.2, 1384.681, 0), V(12.7, 1384.681, 0)), False)
sketch2.addGeometry(Part.LineSegment(V(12.7, 1384.681, 0), V(12.7, 1397, 0)), False)
sketch2.addGeometry(Part.LineSegment(V(12.7, 1397, 0), V(76.2, 1397, 0)), False)
sketch2.addGeometry(Part.LineSegment(V(76.2, 1397, 0), V(76.2, 1384.681, 0)), False)
sketch2.addGeometry(Part.LineSegment(V(101.219, 1397, 0), V(88.9, 1397, 0)), False)
sketch2.addGeometry(Part.LineSegment(V(88.9, 1397, 0), V(88.9, 1460.5, 0)), False)
sketch2.addGeometry(Part.LineSegment(V(88.9, 1460.5, 0), V(101.219, 1460.5, 0)), False)
sketch2.addGeometry(Part.LineSegment(V(101.219, 1460.5, 0), V(101.219, 1397, 0)), False)
sketch2.addGeometry(Part.LineSegment(V(444.5, 1384.681, 0), V(381, 1384.681, 0)), False)
sketch2.addGeometry(Part.LineSegment(V(381, 1384.681, 0), V(381, 1397, 0)), False)
sketch2.addGeometry(Part.LineSegment(V(381, 1397, 0), V(444.5, 1397, 0)), False)
sketch2.addGeometry(Part.LineSegment(V(444.5, 1397, 0), V(444.5, 1384.681, 0)), False)
sketch2.addGeometry(Part.LineSegment(V(368.3, 1397, 0), V(355.981, 1397, 0)), False)
sketch2.addGeometry(Part.LineSegment(V(355.981, 1397, 0), V(355.981, 1460.5, 0)), False)
sketch2.addGeometry(Part.LineSegment(V(355.981, 1460.5, 0), V(368.3, 1460.5, 0)), False)
sketch2.addGeometry(Part.LineSegment(V(368.3, 1460.5, 0), V(368.3, 1397, 0)), False)
sketch2.addConstraint(Sketcher.Constraint("Coincident", 0, 2, 1, 1))
sketch2.addConstraint(Sketcher.Constraint("Coincident", 1, 2, 2, 1))
sketch2.addConstraint(Sketcher.Constraint("Coincident", 2, 2, 3, 1))
sketch2.addConstraint(Sketcher.Constraint("Coincident", 3, 2, 0, 1))
sketch2.addConstraint(Sketcher.Constraint("Coincident", 4, 2, 5, 1))
sketch2.addConstraint(Sketcher.Constraint("Coincident", 5, 2, 6, 1))
sketch2.addConstraint(Sketcher.Constraint("Coincident", 6, 2, 7, 1))
sketch2.addConstraint(Sketcher.Constraint("Coincident", 7, 2, 4, 1))
sketch2.addConstraint(Sketcher.Constraint("Coincident", 8, 2, 9, 1))
sketch2.addConstraint(Sketcher.Constraint("Coincident", 9, 2, 10, 1))
sketch2.addConstraint(Sketcher.Constraint("Coincident", 10, 2, 11, 1))
sketch2.addConstraint(Sketcher.Constraint("Coincident", 11, 2, 8, 1))
sketch2.addConstraint(Sketcher.Constraint("Coincident", 12, 2, 13, 1))
sketch2.addConstraint(Sketcher.Constraint("Coincident", 13, 2, 14, 1))
sketch2.addConstraint(Sketcher.Constraint("Coincident", 14, 2, 15, 1))
sketch2.addConstraint(Sketcher.Constraint("Coincident", 15, 2, 12, 1))
sketch2.addConstraint(Sketcher.Constraint("Coincident", 16, 2, 17, 1))
sketch2.addConstraint(Sketcher.Constraint("Coincident", 17, 2, 18, 1))
sketch2.addConstraint(Sketcher.Constraint("Coincident", 18, 2, 19, 1))
sketch2.addConstraint(Sketcher.Constraint("Coincident", 19, 2, 16, 1))
sketch2.addConstraint(Sketcher.Constraint("Coincident", 20, 2, 21, 1))
sketch2.addConstraint(Sketcher.Constraint("Coincident", 21, 2, 22, 1))
sketch2.addConstraint(Sketcher.Constraint("Coincident", 22, 2, 23, 1))
sketch2.addConstraint(Sketcher.Constraint("Coincident", 23, 2, 20, 1))
sketch2.addConstraint(Sketcher.Constraint("Coincident", 24, 2, 25, 1))
sketch2.addConstraint(Sketcher.Constraint("Coincident", 25, 2, 26, 1))
sketch2.addConstraint(Sketcher.Constraint("Coincident", 26, 2, 27, 1))
sketch2.addConstraint(Sketcher.Constraint("Coincident", 27, 2, 24, 1))
sketch2.addConstraint(Sketcher.Constraint("Coincident", 28, 2, 29, 1))
sketch2.addConstraint(Sketcher.Constraint("Coincident", 29, 2, 30, 1))
sketch2.addConstraint(Sketcher.Constraint("Coincident", 30, 2, 31, 1))
sketch2.addConstraint(Sketcher.Constraint("Coincident", 31, 2, 28, 1))
sketch2.addConstraint(Sketcher.Constraint("Coincident", 32, 2, 33, 1))
sketch2.addConstraint(Sketcher.Constraint("Coincident", 33, 2, 34, 1))
sketch2.addConstraint(Sketcher.Constraint("Coincident", 34, 2, 35, 1))
sketch2.addConstraint(Sketcher.Constraint("Coincident", 35, 2, 32, 1))
sketch2.addConstraint(Sketcher.Constraint("Vertical", 0))
sketch2.addConstraint(Sketcher.Constraint("Horizontal", 1))
sketch2.addConstraint(Sketcher.Constraint("Vertical", 2))
sketch2.addConstraint(Sketcher.Constraint("Horizontal", 3))
sketch2.addConstraint(Sketcher.Constraint("Horizontal", 4))
sketch2.addConstraint(Sketcher.Constraint("Vertical", 5))
sketch2.addConstraint(Sketcher.Constraint("Horizontal", 6))
sketch2.addConstraint(Sketcher.Constraint("Vertical", 7))
sketch2.addConstraint(Sketcher.Constraint("Horizontal", 8))
sketch2.addConstraint(Sketcher.Constraint("Vertical", 9))
sketch2.addConstraint(Sketcher.Constraint("Horizontal", 10))
sketch2.addConstraint(Sketcher.Constraint("Vertical", 11))
sketch2.addConstraint(Sketcher.Constraint("Horizontal", 12))
sketch2.addConstraint(Sketcher.Constraint("Vertical", 13))
sketch2.addConstraint(Sketcher.Constraint("Horizontal", 14))
sketch2.addConstraint(Sketcher.Constraint("Vertical", 15))
sketch2.addConstraint(Sketcher.Constraint("Horizontal", 16))
sketch2.addConstraint(Sketcher.Constraint("Vertical", 17))
sketch2.addConstraint(Sketcher.Constraint("Horizontal", 18))
sketch2.addConstraint(Sketcher.Constraint("Vertical", 19))
sketch2.addConstraint(Sketcher.Constraint("Horizontal", 20))
sketch2.addConstraint(Sketcher.Constraint("Vertical", 21))
sketch2.addConstraint(Sketcher.Constraint("Horizontal", 22))
sketch2.addConstraint(Sketcher.Constraint("Vertical", 23))
sketch2.addConstraint(Sketcher.Constraint("Horizontal", 24))
sketch2.addConstraint(Sketcher.Constraint("Vertical", 25))
sketch2.addConstraint(Sketcher.Constraint("Horizontal", 26))
sketch2.addConstraint(Sketcher.Constraint("Vertical", 27))
sketch2.addConstraint(Sketcher.Constraint("Horizontal", 28))
sketch2.addConstraint(Sketcher.Constraint("Vertical", 29))
sketch2.addConstraint(Sketcher.Constraint("Horizontal", 30))
sketch2.addConstraint(Sketcher.Constraint("Vertical", 31))
sketch2.addConstraint(Sketcher.Constraint("Horizontal", 32))
sketch2.addConstraint(Sketcher.Constraint("Vertical", 33))
sketch2.addConstraint(Sketcher.Constraint("Horizontal", 34))
sketch2.addConstraint(Sketcher.Constraint("Vertical", 35))
sketch2.addConstraint(Sketcher.Constraint("PointOnObject", 0, 2, -2))
sketch2.addConstraint(Sketcher.Constraint("Horizontal", 6, 2, 8, 2))
sketch2.addConstraint(Sketcher.Constraint("Horizontal", 7, 2, 12, 2))
sketch2.addConstraint(Sketcher.Constraint("Horizontal", 11, 2, 13, 2))
sketch2.addConstraint(Sketcher.Constraint("Horizontal", 14, 2, 16, 2))
sketch2.addConstraint(Sketcher.Constraint("Horizontal", 10, 2, 17, 2))
sketch2.addConstraint(Sketcher.Constraint("Horizontal", 22, 2, 24, 2))
sketch2.addConstraint(Sketcher.Constraint("Horizontal", 23, 2, 28, 2))
sketch2.addConstraint(Sketcher.Constraint("Horizontal", 27, 2, 29, 2))
sketch2.addConstraint(Sketcher.Constraint("Horizontal", 30, 2, 32, 2))
sketch2.addConstraint(Sketcher.Constraint("Horizontal", 26, 2, 33, 2))
sketch2.addConstraint(Sketcher.Constraint("Vertical", 9, 2, 20, 2))
sketch2.addConstraint(Sketcher.Constraint("Vertical", 11, 2, 22, 2))
sketch2.addConstraint(Sketcher.Constraint("Vertical", 5, 2, 24, 2))
sketch2.addConstraint(Sketcher.Constraint("Vertical", 7, 2, 26, 2))
sketch2.addConstraint(Sketcher.Constraint("Vertical", 17, 2, 28, 2))
sketch2.addConstraint(Sketcher.Constraint("Vertical", 19, 2, 30, 2))
sketch2.addConstraint(Sketcher.Constraint("Vertical", 13, 2, 32, 2))
sketch2.addConstraint(Sketcher.Constraint("Vertical", 15, 2, 34, 2))
sketch2.addConstraint(Sketcher.Constraint("Equal", 6, 12))
sketch2.addConstraint(Sketcher.Constraint("Equal", 10, 16))
sketch2.addConstraint(Sketcher.Constraint("Equal", 3, 0))
sketch2.addConstraint(Sketcher.Constraint("Equal", 30, 5))
sketch2.addConstraint(Sketcher.Constraint("Equal", 34, 9))
sketch2.addConstraint(Sketcher.Constraint("Equal", 19, 21))
sketch2.addConstraint(Sketcher.Constraint("Equal", 15, 25))
sketch2.addConstraint(Sketcher.Constraint("DistanceX", 1, 1, 1, 2, Q("18 in")))
sketch2.addConstraint(Sketcher.Constraint("DistanceX", 8, 2, 8, 1, Q("2.5 in")))
sketch2.addConstraint(Sketcher.Constraint("DistanceY", -1, 1, 0, 2, Q("40 in")))
sketch2.addConstraint(Sketcher.Constraint("DistanceY", -1, 1, 5, 2, Q("43 in")))
sketch2.addConstraint(Sketcher.Constraint("DistanceX", -1, 1, 10, 2, Q("3 in")))
sketch2.addConstraint(Sketcher.Constraint("DistanceX", -1, 1, 16, 2, Q("15 in")))
sketch2.addConstraint(Sketcher.Constraint("DistanceY", -1, 1, 21, 2, Q("55 in")))
sketch2.addConstraint(Sketcher.Constraint("DistanceX", 8, 2, 5, 2, Q("3 in")))
sketch2.addConstraint(Sketcher.Constraint("DistanceX", 14, 2, 18, 2, Q("3 in")))
sketch2.addConstraint(Sketcher.Constraint("DistanceX", 4, 2, 4, 1, Q("0.485 in")))
sketch2.setExpression("Constraints[98]", "Params.sketch2_width")
sketch2.setExpression("Constraints[99]", "Params.sketch2_width2")
sketch2.setExpression("Constraints[107]", "Params.sketch2_width3")
pad2 = body2.newObject("PartDesign::Pad", "Pad001")
pad2.Profile = sketch2
pad2.setExpression("Length", "Params.pad2_length")

doc.recompute()
